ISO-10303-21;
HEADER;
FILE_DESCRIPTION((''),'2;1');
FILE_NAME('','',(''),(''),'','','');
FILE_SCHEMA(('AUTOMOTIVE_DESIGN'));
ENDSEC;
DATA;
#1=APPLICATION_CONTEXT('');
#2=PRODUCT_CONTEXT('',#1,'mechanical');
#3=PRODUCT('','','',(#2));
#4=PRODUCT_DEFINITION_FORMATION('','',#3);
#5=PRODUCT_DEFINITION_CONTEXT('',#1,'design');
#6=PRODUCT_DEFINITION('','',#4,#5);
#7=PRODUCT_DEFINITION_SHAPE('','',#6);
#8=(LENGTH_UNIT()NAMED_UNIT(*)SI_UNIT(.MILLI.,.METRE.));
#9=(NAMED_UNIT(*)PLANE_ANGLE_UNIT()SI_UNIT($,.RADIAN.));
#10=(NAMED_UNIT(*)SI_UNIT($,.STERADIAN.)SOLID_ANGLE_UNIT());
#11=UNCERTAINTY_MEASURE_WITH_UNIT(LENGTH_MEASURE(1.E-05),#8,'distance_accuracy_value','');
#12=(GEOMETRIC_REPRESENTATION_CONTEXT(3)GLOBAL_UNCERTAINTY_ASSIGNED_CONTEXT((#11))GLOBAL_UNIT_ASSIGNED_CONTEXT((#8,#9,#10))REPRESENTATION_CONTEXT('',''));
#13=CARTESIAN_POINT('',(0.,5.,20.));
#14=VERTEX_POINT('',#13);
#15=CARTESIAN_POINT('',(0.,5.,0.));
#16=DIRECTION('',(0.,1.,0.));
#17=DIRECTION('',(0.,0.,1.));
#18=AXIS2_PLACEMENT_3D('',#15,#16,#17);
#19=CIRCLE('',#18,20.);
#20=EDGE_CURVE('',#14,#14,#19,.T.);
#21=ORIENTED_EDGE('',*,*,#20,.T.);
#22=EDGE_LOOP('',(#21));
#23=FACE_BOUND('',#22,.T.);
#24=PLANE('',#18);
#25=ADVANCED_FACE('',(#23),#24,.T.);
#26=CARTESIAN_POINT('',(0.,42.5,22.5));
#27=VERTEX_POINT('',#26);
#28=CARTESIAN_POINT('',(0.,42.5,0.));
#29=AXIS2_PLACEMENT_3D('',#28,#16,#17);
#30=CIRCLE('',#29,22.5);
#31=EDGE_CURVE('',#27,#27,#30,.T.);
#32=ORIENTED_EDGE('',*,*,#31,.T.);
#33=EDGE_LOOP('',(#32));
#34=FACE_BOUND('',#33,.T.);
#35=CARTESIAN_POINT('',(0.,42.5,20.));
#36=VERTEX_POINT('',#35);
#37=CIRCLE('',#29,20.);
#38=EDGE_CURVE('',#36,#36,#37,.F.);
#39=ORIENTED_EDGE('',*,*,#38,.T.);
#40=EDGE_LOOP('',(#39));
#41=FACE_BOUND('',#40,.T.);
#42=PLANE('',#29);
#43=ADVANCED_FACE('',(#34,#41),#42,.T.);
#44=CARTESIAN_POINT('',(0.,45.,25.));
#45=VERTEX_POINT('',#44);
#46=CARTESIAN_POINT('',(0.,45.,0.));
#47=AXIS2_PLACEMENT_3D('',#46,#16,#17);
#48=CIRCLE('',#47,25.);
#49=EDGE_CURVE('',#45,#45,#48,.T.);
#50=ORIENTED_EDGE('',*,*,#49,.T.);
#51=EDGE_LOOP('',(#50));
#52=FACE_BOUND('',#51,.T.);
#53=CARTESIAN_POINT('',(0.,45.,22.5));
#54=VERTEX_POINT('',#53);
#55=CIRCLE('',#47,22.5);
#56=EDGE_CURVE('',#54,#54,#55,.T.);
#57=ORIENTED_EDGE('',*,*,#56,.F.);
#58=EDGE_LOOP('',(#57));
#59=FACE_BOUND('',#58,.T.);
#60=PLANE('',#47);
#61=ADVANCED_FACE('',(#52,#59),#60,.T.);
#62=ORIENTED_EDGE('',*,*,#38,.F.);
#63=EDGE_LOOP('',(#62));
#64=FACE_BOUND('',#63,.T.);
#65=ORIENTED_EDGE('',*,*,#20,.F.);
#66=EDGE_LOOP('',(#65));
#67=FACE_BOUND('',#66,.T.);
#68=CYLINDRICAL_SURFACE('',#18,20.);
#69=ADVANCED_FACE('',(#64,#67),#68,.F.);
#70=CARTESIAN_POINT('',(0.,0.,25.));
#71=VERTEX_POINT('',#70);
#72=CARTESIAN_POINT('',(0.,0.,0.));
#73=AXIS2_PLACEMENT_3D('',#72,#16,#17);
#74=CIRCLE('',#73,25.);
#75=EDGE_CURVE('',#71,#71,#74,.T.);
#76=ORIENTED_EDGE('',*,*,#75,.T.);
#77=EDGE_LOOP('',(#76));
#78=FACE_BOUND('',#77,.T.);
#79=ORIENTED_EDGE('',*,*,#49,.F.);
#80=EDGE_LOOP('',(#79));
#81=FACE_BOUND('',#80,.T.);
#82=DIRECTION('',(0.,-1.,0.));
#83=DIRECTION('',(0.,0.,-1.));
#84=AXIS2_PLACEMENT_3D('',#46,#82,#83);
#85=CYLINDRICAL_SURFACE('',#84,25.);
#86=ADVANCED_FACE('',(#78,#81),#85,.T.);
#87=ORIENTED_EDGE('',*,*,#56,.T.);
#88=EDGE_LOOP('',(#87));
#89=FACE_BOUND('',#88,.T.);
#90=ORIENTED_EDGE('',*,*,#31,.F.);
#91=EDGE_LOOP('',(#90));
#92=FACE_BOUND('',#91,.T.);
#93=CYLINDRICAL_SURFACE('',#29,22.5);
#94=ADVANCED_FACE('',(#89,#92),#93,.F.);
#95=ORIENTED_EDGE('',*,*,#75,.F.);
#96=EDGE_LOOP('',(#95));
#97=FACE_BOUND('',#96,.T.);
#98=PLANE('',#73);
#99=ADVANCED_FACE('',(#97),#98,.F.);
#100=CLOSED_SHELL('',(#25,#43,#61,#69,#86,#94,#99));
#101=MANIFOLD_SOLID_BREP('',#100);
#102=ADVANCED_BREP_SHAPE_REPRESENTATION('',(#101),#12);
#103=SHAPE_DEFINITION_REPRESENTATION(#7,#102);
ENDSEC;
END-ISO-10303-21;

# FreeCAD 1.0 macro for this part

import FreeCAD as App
import Part
import Sketcher
Q = App.Units.Quantity

doc = App.newDocument("Part")
body = doc.addObject("PartDesign::Body", "Body")

sketch1 = body.newObject("Sketcher::SketchObject", "Sketch")
sketch1.AttachmentSupport = (doc.getObject("XZ_Plane"), [""])
sketch1.MapMode = "FlatFace"
sketch1.addGeometry(Part.Circle(App.Vector(0, 0, 0), App.Vector(0, 0, 1), 25), False)
sketch1.addConstraint(Sketcher.Constraint("Coincident", 0, 3, -1, 1))
sketch1.addConstraint(Sketcher.Constraint("Diameter", 0, Q("50 mm")))
pad1 = body.newObject("PartDesign::Pad", "Pad")
pad1.Profile = sketch1
pad1.Length = 45
pad1.Reversed = True

sketch2 = body.newObject("Sketcher::SketchObject", "Sketch001")
sketch2.AttachmentSupport = (doc.getObject("XZ_Plane"), [""])
sketch2.MapMode = "FlatFace"
sketch2.AttachmentOffset = App.Placement(App.Vector(0, 0, -45), App.Rotation())
sketch2.addGeometry(Part.Circle(App.Vector(0, 0, 0), App.Vector(0, 0, 1), 20), False)
sketch2.addConstraint(Sketcher.Constraint("Coincident", 0, 3, -1, 1))
sketch2.addConstraint(Sketcher.Constraint("Diameter", 0, Q("40 mm")))
pocket1 = body.newObject("PartDesign::Pocket", "Pocket")
pocket1.Profile = sketch2
pocket1.Length = 40
pocket1.Reversed = True

sketch3 = body.newObject("Sketcher::SketchObject", "Sketch002")
sketch3.AttachmentSupport = (doc.getObject("XZ_Plane"), [""])
sketch3.MapMode = "FlatFace"
sketch3.AttachmentOffset = App.Placement(App.Vector(0, 0, -45), App.Rotation())
sketch3.addGeometry(Part.Circle(App.Vector(0, 0, 0), App.Vector(0, 0, 1), 22), False)
sketch3.addConstraint(Sketcher.Constraint("Coincident", 0, 3, -1, 1))
sketch3.addConstraint(Sketcher.Constraint("Diameter", 0, Q("45 mm")))
pocket2 = body.newObject("PartDesign::Pocket", "Pocket001")
pocket2.Profile = sketch3
pocket2.Length = 2.5
pocket2.Reversed = True

doc.recompute()
